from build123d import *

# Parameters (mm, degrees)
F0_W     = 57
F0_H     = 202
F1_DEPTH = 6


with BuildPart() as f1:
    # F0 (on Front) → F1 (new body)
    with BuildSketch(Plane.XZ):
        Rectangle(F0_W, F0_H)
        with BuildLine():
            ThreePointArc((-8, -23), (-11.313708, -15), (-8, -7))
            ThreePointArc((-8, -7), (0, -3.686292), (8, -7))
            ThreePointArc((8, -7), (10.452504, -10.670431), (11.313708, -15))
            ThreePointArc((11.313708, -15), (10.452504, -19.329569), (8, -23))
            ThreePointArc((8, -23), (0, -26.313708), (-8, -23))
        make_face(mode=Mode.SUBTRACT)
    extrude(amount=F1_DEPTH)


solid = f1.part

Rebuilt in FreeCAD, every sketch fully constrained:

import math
import FreeCAD as App
import Part
import Sketcher
from FreeCAD import Vector
Q = App.Units.Quantity


def add_polygon(sketch, points):
    """Adds a closed chain of lines whose ends are joined by coincident constraints."""
    first, n = sketch.GeometryCount, len(points)
    for a, b in zip(points, points[1:] + points[:1]):
        sketch.addGeometry(Part.LineSegment(App.Vector(*a, 0), App.Vector(*b, 0)), False)
    for i in range(n):
        sketch.addConstraint(Sketcher.Constraint("Coincident", first + i, 2, first + (i + 1) % n, 1))

doc = App.newDocument("Part")
params = doc.addObject("Spreadsheet::Sheet", "Params")
for row, (alias, value) in enumerate([
    ("sketch1_width", "57 mm"),
    ("sketch1_height", "202 mm"),
    ("pad1_length", "6 mm"),
], start=1):
    params.set(f"A{row}", alias)
    params.set(f"B{row}", "=" + value)
    params.setAlias(f"B{row}", alias)

body = doc.addObject("PartDesign::Body", "Body")

# Sketch on XZ plane
sketch1 = doc.addObject("Sketcher::SketchObject", "Sketch")
body.addObject(sketch1)
sketch1.AttachmentSupport = (doc.XZ_Plane, [""])
sketch1.MapMode = "FlatFace"
add_polygon(sketch1, [(-28, 101), (-28, -101), (28, -101), (28, 101)])  # lines 0-3
sketch1.addGeometry(Part.ArcOfCircle(Part.Circle(Vector(0, -15, 0), Vector(0, 0, 1), 11), math.radians(-135), math.radians(-45)), False)  # 4
sketch1.addGeometry(Part.ArcOfCircle(Part.Circle(Vector(0, -15, 0), Vector(0, 0, 1), 11), math.radians(135), math.radians(225)), False)  # 5
sketch1.addGeometry(Part.ArcOfCircle(Part.Circle(Vector(0, -15, 0), Vector(0, 0, 1), 11), math.radians(45), math.radians(135)), False)  # 6
sketch1.addGeometry(Part.ArcOfCircle(Part.Circle(Vector(0, -15, 0), Vector(0, 0, 1), 11), math.radians(0), math.radians(45)), False)  # 7
sketch1.addGeometry(Part.ArcOfCircle(Part.Circle(Vector(0, -15, 0), Vector(0, 0, 1), 11), math.radians(-45), math.radians(0)), False)  # 8
sketch1.addConstraint([
    Sketcher.Constraint("Tangent", 4, 1, 5, 2),
    Sketcher.Constraint("Tangent", 5, 1, 6, 2),
    Sketcher.Constraint("Tangent", 6, 1, 7, 2),
    Sketcher.Constraint("Tangent", 7, 1, 8, 2),
    Sketcher.Constraint("Tangent", 8, 1, 4, 2),
    Sketcher.Constraint("Vertical", 0),
    Sketcher.Constraint("Horizontal", 1),
    Sketcher.Constraint("Vertical", 2),
    Sketcher.Constraint("Horizontal", 3),
    Sketcher.Constraint("Coincident", 6, 3, 4, 3),
    Sketcher.Constraint("Symmetric", 0, 2, 2, 2, -1, 1),
    Sketcher.Constraint("Symmetric", 5, 1, 6, 1, -2),
    Sketcher.Constraint("Horizontal", 6, 3, 7, 1),
    Sketcher.Constraint("Horizontal", 4, 1, 8, 1),
    Sketcher.Constraint("Vertical", 4, 1, 5, 1),
    Sketcher.Constraint("DistanceX", 1, 1, 1, 2, Q("57 mm")),
    Sketcher.Constraint("DistanceY", 0, 2, 0, 1, Q("202 mm")),
    Sketcher.Constraint("DistanceY", 4, 3, -1, 1, Q("14.999998 mm")),
    Sketcher.Constraint("DistanceX", 4, 1, -1, 1, Q("8 mm")),
    Sketcher.Constraint("DistanceY", 4, 1, -1, 1, Q("23 mm")),
])
sketch1.setExpression("Constraints[19]", "Params.sketch1_width")
sketch1.setExpression("Constraints[20]", "Params.sketch1_height")
pad1 = doc.addObject("PartDesign::Pad", "Pad")
body.addObject(pad1)
pad1.Profile = sketch1
pad1.setExpression("Length", "Params.pad1_length")

doc.recompute()
